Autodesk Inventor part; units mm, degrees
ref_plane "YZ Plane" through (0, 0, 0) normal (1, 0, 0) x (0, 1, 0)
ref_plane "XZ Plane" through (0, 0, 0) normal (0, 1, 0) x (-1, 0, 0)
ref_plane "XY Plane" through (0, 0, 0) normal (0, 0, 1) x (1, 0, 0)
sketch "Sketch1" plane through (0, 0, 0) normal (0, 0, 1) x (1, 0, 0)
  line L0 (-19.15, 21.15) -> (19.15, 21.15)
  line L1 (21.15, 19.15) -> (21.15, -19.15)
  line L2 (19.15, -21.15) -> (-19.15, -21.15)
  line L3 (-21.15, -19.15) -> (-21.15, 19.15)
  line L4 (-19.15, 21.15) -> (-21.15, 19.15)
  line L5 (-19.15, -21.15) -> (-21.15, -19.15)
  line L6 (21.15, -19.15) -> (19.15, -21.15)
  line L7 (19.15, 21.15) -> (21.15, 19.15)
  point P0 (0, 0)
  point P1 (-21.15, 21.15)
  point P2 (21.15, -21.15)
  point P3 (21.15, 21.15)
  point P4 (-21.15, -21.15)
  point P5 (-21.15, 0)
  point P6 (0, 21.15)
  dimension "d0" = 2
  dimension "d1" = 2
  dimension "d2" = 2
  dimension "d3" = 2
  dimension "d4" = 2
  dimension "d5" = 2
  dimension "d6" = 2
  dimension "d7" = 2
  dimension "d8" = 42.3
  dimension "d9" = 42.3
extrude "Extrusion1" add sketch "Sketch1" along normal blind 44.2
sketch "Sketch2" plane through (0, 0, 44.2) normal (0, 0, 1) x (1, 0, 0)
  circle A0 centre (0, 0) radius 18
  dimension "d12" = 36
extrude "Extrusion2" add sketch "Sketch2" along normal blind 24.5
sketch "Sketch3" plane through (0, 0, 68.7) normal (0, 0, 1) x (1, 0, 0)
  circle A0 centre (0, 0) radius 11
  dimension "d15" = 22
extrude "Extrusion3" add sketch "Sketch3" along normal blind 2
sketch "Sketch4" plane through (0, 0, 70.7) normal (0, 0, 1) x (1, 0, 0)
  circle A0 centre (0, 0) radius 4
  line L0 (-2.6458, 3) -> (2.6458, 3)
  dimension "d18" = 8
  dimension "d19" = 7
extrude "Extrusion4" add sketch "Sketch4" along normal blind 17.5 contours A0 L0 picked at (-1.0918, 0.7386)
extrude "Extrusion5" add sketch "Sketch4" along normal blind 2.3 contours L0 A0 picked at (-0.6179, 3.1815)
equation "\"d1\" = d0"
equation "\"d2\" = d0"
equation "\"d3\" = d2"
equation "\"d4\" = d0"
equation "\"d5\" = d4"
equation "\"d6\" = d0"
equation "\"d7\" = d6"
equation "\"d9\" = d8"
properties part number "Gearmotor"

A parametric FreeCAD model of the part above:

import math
import FreeCAD as App
import Part
import Sketcher
Q = App.Units.Quantity

doc = App.newDocument("Part")
params = doc.addObject("Spreadsheet::Sheet", "Params")
for row, (alias, value) in enumerate([
    ("pad1_length", "44.2 mm"),
    ("sketch2_diameter", "36 mm"),
    ("pad2_length", "24.5 mm"),
    ("sketch3_diameter", "22 mm"),
    ("pad3_length", "2 mm"),
    ("sketch4_radius", "4 mm"),
    ("pad4_length", "17.5 mm"),
    ("sketch5_radius", "4 mm"),
    ("pad5_length", "2.3 mm"),
], start=1):
    params.set(f"A{row}", alias)
    params.set(f"B{row}", "=" + value)
    params.setAlias(f"B{row}", alias)

body = doc.addObject("PartDesign::Body", "Body")

sketch1 = doc.addObject("Sketcher::SketchObject", "Sketch")
body.addObject(sketch1)
sketch1.AttachmentSupport = (doc.XY_Plane, [""])
sketch1.MapMode = "FlatFace"
sketch1.addGeometry(Part.LineSegment(App.Vector(19.1, 21.1, 0), App.Vector(-19.1, 21.1, 0)), False)
sketch1.addGeometry(Part.LineSegment(App.Vector(-19.1, 21.1, 0), App.Vector(-21.1, 19.1, 0)), False)
sketch1.addGeometry(Part.LineSegment(App.Vector(-21.1, 19.1, 0), App.Vector(-21.1, -19.1, 0)), False)
sketch1.addGeometry(Part.LineSegment(App.Vector(-21.1, -19.1, 0), App.Vector(-19.1, -21.1, 0)), False)
sketch1.addGeometry(Part.LineSegment(App.Vector(-19.1, -21.1, 0), App.Vector(19.1, -21.1, 0)), False)
sketch1.addGeometry(Part.LineSegment(App.Vector(19.1, -21.1, 0), App.Vector(21.1, -19.1, 0)), False)
sketch1.addGeometry(Part.LineSegment(App.Vector(21.1, -19.1, 0), App.Vector(21.1, 19.1, 0)), False)
sketch1.addGeometry(Part.LineSegment(App.Vector(21.1, 19.1, 0), App.Vector(19.1, 21.1, 0)), False)
sketch1.addConstraint(Sketcher.Constraint("Coincident", 0, 2, 1, 1))
sketch1.addConstraint(Sketcher.Constraint("Coincident", 1, 2, 2, 1))
sketch1.addConstraint(Sketcher.Constraint("Coincident", 2, 2, 3, 1))
sketch1.addConstraint(Sketcher.Constraint("Coincident", 3, 2, 4, 1))
sketch1.addConstraint(Sketcher.Constraint("Coincident", 4, 2, 5, 1))
sketch1.addConstraint(Sketcher.Constraint("Coincident", 5, 2, 6, 1))
sketch1.addConstraint(Sketcher.Constraint("Coincident", 6, 2, 7, 1))
sketch1.addConstraint(Sketcher.Constraint("Coincident", 7, 2, 0, 1))
sketch1.addConstraint(Sketcher.Constraint("Horizontal", 0))
sketch1.addConstraint(Sketcher.Constraint("Vertical", 2))
sketch1.addConstraint(Sketcher.Constraint("Horizontal", 4))
sketch1.addConstraint(Sketcher.Constraint("Vertical", 6))
sketch1.addConstraint(Sketcher.Constraint("Symmetric", 0, 2, 4, 2, -1, 1))
sketch1.addConstraint(Sketcher.Constraint("Symmetric", 1, 2, 5, 2, -1, 1))
sketch1.addConstraint(Sketcher.Constraint("Perpendicular", 1, 3))
sketch1.addConstraint(Sketcher.Constraint("Perpendicular", 5, 7))
sketch1.addConstraint(Sketcher.Constraint("Horizontal", 2, 2, 5, 2))
sketch1.addConstraint(Sketcher.Constraint("Horizontal", 1, 2, 6, 2))
sketch1.addConstraint(Sketcher.Constraint("Vertical", 0, 2, 3, 2))
sketch1.addConstraint(Sketcher.Constraint("Equal", 4, 2))
sketch1.addConstraint(Sketcher.Constraint("DistanceX", 1, 2, 0, 2, Q("2 mm")))
sketch1.addConstraint(Sketcher.Constraint("DistanceY", 3, 2, 0, 2, Q("42.3 mm")))
pad1 = doc.addObject("PartDesign::Pad", "Pad")
body.addObject(pad1)
pad1.Profile = sketch1
pad1.setExpression("Length", "Params.pad1_length")

sketch2 = doc.addObject("Sketcher::SketchObject", "Sketch001")
body.addObject(sketch2)
sketch2.AttachmentSupport = (doc.XY_Plane, [""])
sketch2.MapMode = "FlatFace"
sketch2.AttachmentOffset = App.Placement(App.Vector(0, 0, 44.2), App.Rotation())
sketch2.addGeometry(Part.Circle(App.Vector(0, 0, 0), App.Vector(0, 0, 1), 18), False)
sketch2.addConstraint(Sketcher.Constraint("Coincident", 0, 3, -1, 1))
sketch2.addConstraint(Sketcher.Constraint("Diameter", 0, Q("36 mm")))
sketch2.setExpression("Constraints[1]", "Params.sketch2_diameter")
pad2 = doc.addObject("PartDesign::Pad", "Pad001")
body.addObject(pad2)
pad2.Profile = sketch2
pad2.setExpression("Length", "Params.pad2_length")

sketch3 = doc.addObject("Sketcher::SketchObject", "Sketch002")
body.addObject(sketch3)
sketch3.AttachmentSupport = (doc.XY_Plane, [""])
sketch3.MapMode = "FlatFace"
sketch3.AttachmentOffset = App.Placement(App.Vector(0, 0, 68.7), App.Rotation())
sketch3.addGeometry(Part.Circle(App.Vector(0, 0, 0), App.Vector(0, 0, 1), 11), False)
sketch3.addConstraint(Sketcher.Constraint("Coincident", 0, 3, -1, 1))
sketch3.addConstraint(Sketcher.Constraint("Diameter", 0, Q("22 mm")))
sketch3.setExpression("Constraints[1]", "Params.sketch3_diameter")
pad3 = doc.addObject("PartDesign::Pad", "Pad002")
body.addObject(pad3)
pad3.Profile = sketch3
pad3.setExpression("Length", "Params.pad3_length")

sketch4 = doc.addObject("Sketcher::SketchObject", "Sketch003")
body.addObject(sketch4)
sketch4.AttachmentSupport = (doc.XY_Plane, [""])
sketch4.MapMode = "FlatFace"
sketch4.AttachmentOffset = App.Placement(App.Vector(0, 0, 70.7), App.Rotation())
sketch4.addGeometry(Part.ArcOfCircle(Part.Circle(App.Vector(0, 0, 0), App.Vector(0, 0, 1), 4), math.radians(131), math.radians(409)), False)
sketch4.addGeometry(Part.LineSegment(App.Vector(-2.6, 3, 0), App.Vector(2.6, 3, 0)), False)
sketch4.addConstraint(Sketcher.Constraint("Coincident", 0, 1, 1, 1))
sketch4.addConstraint(Sketcher.Constraint("Coincident", 1, 2, 0, 2))
sketch4.addConstraint(Sketcher.Constraint("Horizontal", 1))
sketch4.addConstraint(Sketcher.Constraint("Coincident", 0, 3, -1, 1))
sketch4.addConstraint(Sketcher.Constraint("Radius", 0, Q("4 mm")))
sketch4.addConstraint(Sketcher.Constraint("DistanceY", -1, 1, 0, 1, Q("3 mm")))
sketch4.setExpression("Constraints[4]", "Params.sketch4_radius")
pad4 = doc.addObject("PartDesign::Pad", "Pad003")
body.addObject(pad4)
pad4.Profile = sketch4
pad4.setExpression("Length", "Params.pad4_length")

sketch5 = doc.addObject("Sketcher::SketchObject", "Sketch004")
body.addObject(sketch5)
sketch5.AttachmentSupport = (doc.XY_Plane, [""])
sketch5.MapMode = "FlatFace"
sketch5.AttachmentOffset = App.Placement(App.Vector(0, 0, 70.7), App.Rotation())
sketch5.addGeometry(Part.LineSegment(App.Vector(-2.6, 3, 0), App.Vector(2.6, 3, 0)), False)
sketch5.addGeometry(Part.ArcOfCircle(Part.Circle(App.Vector(0, 0, 0), App.Vector(0, 0, 1), 4), math.radians(49), math.radians(131)), False)
sketch5.addConstraint(Sketcher.Constraint("Coincident", 0, 1, 1, 2))
sketch5.addConstraint(Sketcher.Constraint("Coincident", 1, 1, 0, 2))
sketch5.addConstraint(Sketcher.Constraint("Horizontal", 0))
sketch5.addConstraint(Sketcher.Constraint("Coincident", 1, 3, -1, 1))
sketch5.addConstraint(Sketcher.Constraint("Radius", 1, Q("4 mm")))
sketch5.addConstraint(Sketcher.Constraint("DistanceY", -1, 1, 0, 1, Q("3 mm")))
sketch5.setExpression("Constraints[4]", "Params.sketch5_radius")
pad5 = doc.addObject("PartDesign::Pad", "Pad004")
body.addObject(pad5)
pad5.Profile = sketch5
pad5.setExpression("Length", "Params.pad5_length")

doc.recompute()
